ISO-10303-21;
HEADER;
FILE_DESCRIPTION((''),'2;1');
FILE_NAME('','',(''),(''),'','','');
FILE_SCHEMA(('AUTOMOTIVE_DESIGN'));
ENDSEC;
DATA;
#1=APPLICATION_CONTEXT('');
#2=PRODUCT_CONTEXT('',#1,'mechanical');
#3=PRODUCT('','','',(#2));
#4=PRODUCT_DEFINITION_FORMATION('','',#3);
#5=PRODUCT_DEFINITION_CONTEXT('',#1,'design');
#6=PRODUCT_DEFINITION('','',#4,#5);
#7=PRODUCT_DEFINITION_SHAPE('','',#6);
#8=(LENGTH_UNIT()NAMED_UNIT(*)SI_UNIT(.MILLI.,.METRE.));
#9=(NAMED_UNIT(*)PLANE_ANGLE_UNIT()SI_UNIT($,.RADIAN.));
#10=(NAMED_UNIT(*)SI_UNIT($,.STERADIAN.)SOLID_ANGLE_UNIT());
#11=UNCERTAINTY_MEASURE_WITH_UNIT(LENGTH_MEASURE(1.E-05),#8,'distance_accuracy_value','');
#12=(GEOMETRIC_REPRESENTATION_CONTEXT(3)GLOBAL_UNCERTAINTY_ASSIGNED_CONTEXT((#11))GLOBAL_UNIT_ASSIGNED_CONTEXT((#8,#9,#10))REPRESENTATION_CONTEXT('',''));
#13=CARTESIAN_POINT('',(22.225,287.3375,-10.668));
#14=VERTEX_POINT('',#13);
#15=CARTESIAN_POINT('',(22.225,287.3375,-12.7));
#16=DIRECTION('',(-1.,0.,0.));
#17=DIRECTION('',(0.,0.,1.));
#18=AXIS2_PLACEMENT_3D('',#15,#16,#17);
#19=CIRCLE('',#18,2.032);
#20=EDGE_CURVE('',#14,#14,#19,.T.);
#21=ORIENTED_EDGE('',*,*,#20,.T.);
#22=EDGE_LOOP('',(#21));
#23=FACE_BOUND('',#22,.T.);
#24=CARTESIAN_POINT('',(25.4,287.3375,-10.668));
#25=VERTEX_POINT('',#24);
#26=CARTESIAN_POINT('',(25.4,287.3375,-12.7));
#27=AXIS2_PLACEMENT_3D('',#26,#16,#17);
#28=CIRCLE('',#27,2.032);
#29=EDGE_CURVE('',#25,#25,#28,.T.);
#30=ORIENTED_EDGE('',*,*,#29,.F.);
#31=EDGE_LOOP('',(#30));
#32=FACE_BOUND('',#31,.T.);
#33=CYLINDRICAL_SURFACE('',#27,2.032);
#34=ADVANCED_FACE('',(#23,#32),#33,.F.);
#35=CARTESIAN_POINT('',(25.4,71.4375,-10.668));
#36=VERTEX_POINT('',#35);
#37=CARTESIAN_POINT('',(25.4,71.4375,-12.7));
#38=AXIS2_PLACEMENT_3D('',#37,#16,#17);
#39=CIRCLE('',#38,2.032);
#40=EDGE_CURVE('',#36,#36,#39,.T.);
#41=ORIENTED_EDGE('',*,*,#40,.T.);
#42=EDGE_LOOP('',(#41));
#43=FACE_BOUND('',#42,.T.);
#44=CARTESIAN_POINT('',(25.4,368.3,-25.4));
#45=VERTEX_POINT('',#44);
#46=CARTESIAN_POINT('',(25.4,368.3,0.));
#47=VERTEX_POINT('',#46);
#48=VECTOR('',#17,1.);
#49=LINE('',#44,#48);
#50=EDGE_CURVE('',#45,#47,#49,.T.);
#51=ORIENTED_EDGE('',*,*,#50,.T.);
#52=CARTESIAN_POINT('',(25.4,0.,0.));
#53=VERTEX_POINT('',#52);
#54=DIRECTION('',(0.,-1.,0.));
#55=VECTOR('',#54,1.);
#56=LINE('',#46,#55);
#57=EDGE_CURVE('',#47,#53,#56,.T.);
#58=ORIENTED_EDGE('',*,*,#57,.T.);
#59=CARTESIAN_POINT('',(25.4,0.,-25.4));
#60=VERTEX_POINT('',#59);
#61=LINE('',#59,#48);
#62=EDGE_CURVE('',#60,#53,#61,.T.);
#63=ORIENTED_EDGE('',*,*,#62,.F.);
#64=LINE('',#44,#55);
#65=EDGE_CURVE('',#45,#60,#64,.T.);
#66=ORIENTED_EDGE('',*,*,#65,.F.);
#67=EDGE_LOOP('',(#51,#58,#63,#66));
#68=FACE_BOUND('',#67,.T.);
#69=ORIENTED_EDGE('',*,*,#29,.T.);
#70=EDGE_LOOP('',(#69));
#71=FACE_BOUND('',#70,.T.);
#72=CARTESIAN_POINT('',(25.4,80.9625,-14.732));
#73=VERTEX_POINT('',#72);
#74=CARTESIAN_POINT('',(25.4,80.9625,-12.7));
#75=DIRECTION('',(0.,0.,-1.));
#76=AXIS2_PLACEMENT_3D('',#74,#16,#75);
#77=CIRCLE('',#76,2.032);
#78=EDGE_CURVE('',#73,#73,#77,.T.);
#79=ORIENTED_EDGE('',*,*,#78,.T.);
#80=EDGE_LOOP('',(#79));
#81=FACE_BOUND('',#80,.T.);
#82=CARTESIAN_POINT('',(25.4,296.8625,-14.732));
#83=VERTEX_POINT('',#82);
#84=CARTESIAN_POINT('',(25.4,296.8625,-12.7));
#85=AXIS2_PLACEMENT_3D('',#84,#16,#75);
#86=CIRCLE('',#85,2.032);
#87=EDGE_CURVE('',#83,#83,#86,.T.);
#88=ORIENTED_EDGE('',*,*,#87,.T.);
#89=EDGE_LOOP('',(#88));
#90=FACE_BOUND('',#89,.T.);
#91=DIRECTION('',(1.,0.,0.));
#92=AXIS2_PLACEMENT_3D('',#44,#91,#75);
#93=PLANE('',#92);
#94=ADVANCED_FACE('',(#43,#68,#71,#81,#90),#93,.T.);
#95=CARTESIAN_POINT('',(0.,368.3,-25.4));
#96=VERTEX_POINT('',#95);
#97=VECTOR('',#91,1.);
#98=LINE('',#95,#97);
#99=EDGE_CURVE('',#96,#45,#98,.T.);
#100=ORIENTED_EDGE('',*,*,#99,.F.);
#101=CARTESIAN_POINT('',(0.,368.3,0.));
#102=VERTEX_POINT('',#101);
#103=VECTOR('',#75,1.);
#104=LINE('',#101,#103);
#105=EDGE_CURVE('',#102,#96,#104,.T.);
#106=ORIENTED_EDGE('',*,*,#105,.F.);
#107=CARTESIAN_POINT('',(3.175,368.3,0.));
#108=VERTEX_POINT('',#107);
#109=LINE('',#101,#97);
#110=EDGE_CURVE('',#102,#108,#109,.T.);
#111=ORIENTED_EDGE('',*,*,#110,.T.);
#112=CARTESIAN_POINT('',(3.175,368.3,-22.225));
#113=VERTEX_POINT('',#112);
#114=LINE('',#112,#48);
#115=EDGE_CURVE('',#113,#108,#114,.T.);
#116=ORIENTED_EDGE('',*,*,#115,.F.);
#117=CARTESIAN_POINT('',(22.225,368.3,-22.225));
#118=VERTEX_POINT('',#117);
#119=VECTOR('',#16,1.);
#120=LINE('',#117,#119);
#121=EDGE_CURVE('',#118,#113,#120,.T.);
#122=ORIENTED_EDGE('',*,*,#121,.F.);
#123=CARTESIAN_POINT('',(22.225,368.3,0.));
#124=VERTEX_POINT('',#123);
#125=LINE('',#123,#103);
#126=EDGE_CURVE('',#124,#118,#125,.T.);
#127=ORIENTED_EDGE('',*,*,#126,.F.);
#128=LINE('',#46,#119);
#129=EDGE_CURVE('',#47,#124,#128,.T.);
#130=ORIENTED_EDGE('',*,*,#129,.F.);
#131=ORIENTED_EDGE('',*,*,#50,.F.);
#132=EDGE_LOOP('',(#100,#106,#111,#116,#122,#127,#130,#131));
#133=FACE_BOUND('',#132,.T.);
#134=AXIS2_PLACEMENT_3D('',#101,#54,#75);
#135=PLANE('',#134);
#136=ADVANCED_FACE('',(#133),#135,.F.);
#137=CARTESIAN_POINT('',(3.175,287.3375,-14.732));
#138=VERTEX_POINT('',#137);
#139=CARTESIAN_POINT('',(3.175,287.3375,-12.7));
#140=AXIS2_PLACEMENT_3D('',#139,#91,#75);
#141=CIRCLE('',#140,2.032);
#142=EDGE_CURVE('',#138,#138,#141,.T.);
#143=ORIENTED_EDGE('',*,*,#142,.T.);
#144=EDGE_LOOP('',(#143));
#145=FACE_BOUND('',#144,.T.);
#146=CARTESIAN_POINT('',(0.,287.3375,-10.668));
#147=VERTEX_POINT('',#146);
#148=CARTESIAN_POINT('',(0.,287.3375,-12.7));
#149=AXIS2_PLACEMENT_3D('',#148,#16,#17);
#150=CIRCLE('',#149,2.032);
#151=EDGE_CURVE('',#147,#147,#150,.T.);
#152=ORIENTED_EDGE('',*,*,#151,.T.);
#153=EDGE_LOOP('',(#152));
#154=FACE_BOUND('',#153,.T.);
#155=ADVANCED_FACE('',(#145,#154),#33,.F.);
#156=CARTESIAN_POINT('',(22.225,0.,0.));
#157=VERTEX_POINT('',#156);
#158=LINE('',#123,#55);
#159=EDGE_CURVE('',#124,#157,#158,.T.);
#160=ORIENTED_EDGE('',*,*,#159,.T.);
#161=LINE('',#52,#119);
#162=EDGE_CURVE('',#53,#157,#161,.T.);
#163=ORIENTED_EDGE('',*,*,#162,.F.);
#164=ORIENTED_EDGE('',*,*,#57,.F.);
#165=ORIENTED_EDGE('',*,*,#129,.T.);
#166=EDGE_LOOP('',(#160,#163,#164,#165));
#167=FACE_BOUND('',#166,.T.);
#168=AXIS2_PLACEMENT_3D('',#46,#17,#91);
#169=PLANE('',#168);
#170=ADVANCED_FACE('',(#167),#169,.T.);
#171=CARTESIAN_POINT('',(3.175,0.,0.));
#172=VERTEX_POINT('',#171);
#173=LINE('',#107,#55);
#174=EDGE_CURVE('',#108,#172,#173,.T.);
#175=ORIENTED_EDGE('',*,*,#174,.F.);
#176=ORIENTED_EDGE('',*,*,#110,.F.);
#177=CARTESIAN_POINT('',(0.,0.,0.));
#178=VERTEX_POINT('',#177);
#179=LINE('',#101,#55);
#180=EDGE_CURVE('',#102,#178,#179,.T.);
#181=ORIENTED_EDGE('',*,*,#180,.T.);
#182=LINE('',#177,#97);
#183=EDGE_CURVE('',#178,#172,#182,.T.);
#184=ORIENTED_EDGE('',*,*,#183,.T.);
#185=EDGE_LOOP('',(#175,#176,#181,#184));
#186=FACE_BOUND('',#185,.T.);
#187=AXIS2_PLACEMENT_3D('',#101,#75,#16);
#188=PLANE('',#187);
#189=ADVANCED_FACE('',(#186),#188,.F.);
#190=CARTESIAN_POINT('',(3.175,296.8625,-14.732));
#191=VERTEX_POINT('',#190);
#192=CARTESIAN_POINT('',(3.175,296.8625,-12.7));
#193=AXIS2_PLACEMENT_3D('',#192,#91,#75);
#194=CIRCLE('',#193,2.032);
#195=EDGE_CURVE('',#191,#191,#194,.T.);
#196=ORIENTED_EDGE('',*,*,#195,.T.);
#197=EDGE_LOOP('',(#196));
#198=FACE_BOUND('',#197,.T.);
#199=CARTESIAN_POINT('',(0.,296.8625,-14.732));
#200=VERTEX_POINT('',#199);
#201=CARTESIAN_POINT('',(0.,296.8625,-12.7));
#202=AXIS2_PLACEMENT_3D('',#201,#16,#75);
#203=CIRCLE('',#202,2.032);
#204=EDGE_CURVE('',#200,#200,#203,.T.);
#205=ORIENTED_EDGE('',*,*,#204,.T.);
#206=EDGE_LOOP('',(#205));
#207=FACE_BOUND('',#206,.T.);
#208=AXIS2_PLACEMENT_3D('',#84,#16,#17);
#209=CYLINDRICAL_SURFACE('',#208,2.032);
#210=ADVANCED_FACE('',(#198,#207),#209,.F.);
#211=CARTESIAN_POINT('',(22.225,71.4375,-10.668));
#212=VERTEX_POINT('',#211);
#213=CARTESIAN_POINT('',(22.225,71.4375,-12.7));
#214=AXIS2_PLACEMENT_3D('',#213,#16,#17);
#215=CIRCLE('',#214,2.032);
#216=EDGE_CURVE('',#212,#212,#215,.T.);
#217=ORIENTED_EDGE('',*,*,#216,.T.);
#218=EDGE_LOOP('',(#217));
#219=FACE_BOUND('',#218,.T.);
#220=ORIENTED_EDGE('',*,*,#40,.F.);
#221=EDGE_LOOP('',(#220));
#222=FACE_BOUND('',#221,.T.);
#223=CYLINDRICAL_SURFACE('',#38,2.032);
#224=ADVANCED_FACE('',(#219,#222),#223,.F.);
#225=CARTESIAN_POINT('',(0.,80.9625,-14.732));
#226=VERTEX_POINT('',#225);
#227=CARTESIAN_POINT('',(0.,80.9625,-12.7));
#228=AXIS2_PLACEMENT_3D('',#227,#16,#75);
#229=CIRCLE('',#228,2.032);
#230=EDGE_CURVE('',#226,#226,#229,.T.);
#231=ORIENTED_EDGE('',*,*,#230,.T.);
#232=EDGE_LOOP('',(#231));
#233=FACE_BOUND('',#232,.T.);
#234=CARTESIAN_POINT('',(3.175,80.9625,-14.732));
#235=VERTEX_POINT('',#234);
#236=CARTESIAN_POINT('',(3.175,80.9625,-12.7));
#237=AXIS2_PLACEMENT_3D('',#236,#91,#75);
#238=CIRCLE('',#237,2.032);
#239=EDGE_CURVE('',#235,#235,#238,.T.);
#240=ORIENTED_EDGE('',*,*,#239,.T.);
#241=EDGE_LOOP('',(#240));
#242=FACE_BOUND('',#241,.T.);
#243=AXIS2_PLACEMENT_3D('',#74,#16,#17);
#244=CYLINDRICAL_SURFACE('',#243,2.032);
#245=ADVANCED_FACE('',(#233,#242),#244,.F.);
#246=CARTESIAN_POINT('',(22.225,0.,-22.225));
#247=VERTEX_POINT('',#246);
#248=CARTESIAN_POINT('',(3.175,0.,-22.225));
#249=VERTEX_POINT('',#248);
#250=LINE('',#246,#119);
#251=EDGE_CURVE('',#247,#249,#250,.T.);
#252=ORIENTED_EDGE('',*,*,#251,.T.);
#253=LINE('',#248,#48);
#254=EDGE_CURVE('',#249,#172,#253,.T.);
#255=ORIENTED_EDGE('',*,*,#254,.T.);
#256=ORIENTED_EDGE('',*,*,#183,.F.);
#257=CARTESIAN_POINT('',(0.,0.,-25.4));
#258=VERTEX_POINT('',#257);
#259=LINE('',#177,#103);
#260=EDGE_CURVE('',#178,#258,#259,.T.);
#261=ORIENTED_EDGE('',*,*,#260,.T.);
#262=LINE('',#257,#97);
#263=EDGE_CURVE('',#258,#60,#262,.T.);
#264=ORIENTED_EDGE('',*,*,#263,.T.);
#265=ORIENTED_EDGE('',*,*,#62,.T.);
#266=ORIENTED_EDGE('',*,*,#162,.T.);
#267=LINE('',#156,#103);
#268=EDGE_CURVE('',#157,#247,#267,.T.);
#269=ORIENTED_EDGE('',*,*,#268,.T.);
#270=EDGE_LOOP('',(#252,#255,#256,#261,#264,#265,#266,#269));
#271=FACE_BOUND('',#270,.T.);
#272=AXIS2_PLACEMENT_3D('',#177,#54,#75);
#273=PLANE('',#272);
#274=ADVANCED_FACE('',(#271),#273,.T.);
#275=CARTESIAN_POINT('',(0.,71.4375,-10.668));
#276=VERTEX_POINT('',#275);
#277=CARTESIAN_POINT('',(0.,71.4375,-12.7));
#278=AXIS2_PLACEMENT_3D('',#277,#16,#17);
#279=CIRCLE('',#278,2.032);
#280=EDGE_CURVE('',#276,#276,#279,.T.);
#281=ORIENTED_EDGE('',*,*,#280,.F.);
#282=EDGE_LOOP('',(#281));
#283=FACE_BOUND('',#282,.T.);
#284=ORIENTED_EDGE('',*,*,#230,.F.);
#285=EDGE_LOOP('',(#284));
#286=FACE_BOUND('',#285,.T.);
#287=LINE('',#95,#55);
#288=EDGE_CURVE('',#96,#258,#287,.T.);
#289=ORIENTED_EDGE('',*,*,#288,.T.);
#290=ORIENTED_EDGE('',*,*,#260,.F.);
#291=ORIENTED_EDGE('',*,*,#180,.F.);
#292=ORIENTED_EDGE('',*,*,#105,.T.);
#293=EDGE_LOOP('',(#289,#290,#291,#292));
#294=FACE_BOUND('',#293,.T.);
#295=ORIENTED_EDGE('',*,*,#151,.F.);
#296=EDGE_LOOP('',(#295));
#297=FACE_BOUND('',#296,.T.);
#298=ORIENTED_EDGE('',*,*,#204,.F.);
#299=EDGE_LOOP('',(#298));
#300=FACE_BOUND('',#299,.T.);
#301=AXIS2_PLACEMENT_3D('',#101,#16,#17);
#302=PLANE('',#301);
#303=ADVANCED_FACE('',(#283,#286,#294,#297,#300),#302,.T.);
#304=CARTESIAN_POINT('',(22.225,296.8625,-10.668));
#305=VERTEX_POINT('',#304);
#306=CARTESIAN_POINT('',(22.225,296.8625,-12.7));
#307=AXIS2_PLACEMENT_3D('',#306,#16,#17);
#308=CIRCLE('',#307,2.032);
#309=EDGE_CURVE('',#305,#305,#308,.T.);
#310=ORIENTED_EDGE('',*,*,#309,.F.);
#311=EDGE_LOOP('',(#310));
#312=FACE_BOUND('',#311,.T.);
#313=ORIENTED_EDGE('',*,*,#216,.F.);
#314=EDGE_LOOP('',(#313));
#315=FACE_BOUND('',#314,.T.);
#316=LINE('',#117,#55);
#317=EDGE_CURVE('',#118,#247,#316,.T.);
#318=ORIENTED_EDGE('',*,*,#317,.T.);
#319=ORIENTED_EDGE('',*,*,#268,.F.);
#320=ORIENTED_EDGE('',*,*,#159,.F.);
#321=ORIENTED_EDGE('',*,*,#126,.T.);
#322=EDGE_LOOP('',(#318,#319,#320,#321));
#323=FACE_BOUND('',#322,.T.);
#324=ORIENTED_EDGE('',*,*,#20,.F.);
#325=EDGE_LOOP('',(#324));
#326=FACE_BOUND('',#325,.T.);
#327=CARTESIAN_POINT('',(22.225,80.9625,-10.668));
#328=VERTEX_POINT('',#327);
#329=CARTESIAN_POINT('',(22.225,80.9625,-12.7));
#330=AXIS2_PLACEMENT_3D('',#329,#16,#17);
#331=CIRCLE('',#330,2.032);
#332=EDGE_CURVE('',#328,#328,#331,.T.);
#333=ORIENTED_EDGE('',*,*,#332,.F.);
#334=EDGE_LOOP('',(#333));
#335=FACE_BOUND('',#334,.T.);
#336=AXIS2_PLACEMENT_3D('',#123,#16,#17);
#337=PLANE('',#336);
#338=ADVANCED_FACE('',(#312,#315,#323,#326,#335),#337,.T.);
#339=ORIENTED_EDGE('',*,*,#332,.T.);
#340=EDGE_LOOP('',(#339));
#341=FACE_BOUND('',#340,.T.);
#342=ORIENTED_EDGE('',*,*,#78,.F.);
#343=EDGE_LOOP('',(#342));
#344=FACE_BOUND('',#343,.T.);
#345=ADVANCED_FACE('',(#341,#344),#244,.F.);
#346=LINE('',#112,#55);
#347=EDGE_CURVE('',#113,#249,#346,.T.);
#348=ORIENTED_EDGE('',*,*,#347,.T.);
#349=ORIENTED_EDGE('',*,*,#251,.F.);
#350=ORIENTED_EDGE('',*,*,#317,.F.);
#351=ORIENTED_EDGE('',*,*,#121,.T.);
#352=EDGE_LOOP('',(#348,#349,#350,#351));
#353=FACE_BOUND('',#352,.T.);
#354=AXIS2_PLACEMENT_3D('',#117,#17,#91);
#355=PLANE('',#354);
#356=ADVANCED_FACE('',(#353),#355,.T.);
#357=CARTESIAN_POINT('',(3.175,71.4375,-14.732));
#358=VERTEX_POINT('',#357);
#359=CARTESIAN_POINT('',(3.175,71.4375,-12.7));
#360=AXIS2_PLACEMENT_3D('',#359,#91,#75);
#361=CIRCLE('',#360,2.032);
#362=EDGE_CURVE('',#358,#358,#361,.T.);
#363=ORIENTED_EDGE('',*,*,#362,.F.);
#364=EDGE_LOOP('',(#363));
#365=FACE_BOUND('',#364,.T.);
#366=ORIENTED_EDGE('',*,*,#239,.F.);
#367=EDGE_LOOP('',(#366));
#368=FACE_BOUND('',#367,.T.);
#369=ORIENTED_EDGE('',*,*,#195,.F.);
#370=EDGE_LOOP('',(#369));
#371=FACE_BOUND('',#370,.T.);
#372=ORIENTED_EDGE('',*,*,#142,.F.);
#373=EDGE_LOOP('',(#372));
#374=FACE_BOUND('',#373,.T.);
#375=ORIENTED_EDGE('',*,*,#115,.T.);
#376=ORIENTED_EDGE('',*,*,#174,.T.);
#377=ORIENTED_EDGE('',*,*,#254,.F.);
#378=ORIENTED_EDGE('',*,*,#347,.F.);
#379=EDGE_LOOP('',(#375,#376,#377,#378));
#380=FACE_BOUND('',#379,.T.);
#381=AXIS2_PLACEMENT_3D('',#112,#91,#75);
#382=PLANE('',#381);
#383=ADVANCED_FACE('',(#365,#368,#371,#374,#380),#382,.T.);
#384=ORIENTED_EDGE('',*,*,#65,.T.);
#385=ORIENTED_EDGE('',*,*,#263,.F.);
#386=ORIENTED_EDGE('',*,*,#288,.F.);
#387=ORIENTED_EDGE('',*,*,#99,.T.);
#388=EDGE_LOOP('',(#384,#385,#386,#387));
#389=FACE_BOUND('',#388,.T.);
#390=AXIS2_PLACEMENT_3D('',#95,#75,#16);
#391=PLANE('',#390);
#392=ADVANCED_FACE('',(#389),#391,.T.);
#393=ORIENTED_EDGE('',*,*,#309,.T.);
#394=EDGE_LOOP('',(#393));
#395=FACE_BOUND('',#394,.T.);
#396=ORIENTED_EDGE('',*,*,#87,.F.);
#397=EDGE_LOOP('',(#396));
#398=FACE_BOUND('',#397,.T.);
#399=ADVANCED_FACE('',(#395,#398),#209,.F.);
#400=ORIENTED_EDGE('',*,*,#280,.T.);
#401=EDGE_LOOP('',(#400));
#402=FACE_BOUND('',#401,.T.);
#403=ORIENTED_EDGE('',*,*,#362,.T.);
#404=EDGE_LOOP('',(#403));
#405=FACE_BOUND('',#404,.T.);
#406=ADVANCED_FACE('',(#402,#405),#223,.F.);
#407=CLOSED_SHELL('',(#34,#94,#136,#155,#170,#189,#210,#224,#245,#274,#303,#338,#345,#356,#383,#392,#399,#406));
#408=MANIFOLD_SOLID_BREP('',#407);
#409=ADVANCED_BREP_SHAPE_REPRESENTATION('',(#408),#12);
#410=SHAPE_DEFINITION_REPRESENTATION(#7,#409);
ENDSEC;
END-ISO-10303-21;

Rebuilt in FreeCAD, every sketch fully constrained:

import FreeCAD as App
import Part
import Sketcher

V = App.Vector
Q = App.Units.Quantity

doc = App.newDocument("Part")
params = doc.addObject("Spreadsheet::Sheet", "Params")
for row, (alias, value) in enumerate([
    ("sketch1_width", "1 in"),
    ("sketch1_width2", "0.75 in"),
    ("sketch1_height", "0.875 in"),
    ("pad1_length", "14.5 in"),
    ("sketch2_diameter", "0.16 in"),
    ("pocket1_length", "1 in"),
], start=1):
    params.set(f"A{row}", alias)
    params.set(f"B{row}", "=" + value)
    params.setAlias(f"B{row}", alias)

body = doc.addObject("PartDesign::Body", "Body")

# Sketch on XZ plane
sketch1 = body.newObject("Sketcher::SketchObject", "Sketch")
sketch1.AttachmentSupport = (doc.getObject("XZ_Plane"), [""])
sketch1.MapMode = "FlatFace"
sketch1.addGeometry([
    Part.LineSegment(V(0, 0, 0), V(3.175, 0, 0)),  # 0
    Part.LineSegment(V(3.175, 0, 0), V(3.175, -22.225, 0)),  # 1
    Part.LineSegment(V(3.175, -22.225, 0), V(22.225, -22.225, 0)),  # 2
    Part.LineSegment(V(22.225, -22.225, 0), V(22.225, 0, 0)),  # 3
    Part.LineSegment(V(22.225, 0, 0), V(25.4, 0, 0)),  # 4
    Part.LineSegment(V(25.4, 0, 0), V(25.4, -25.4, 0)),  # 5
    Part.LineSegment(V(25.4, -25.4, 0), V(0, -25.4, 0)),  # 6
    Part.LineSegment(V(0, -25.4, 0), V(0, 0, 0)),  # 7
], False)
sketch1.addConstraint([
    Sketcher.Constraint("Coincident", 0, 2, 1, 1),
    Sketcher.Constraint("Coincident", 1, 2, 2, 1),
    Sketcher.Constraint("Coincident", 2, 2, 3, 1),
    Sketcher.Constraint("Coincident", 3, 2, 4, 1),
    Sketcher.Constraint("Coincident", 4, 2, 5, 1),
    Sketcher.Constraint("Coincident", 5, 2, 6, 1),
    Sketcher.Constraint("Coincident", 6, 2, 7, 1),
    Sketcher.Constraint("Coincident", 7, 2, 0, 1),
    Sketcher.Constraint("Horizontal", 0),
    Sketcher.Constraint("Vertical", 1),
    Sketcher.Constraint("Horizontal", 2),
    Sketcher.Constraint("Vertical", 3),
    Sketcher.Constraint("Horizontal", 4),
    Sketcher.Constraint("Vertical", 5),
    Sketcher.Constraint("Horizontal", 6),
    Sketcher.Constraint("Vertical", 7),
    Sketcher.Constraint("Coincident", 7, 2, -1, 1),
    Sketcher.Constraint("PointOnObject", 3, 2, -1),
    Sketcher.Constraint("Equal", 0, 4),
    Sketcher.Constraint("Equal", 6, 5),
    Sketcher.Constraint("DistanceX", 6, 2, 6, 1, Q("1 in")),
    Sketcher.Constraint("DistanceX", 2, 1, 2, 2, Q("0.75 in")),
    Sketcher.Constraint("DistanceY", 1, 2, 1, 1, Q("0.875 in")),
])
sketch1.setExpression("Constraints[20]", "Params.sketch1_width")
sketch1.setExpression("Constraints[21]", "Params.sketch1_width2")
sketch1.setExpression("Constraints[22]", "Params.sketch1_height")
pad1 = body.newObject("PartDesign::Pad", "Pad")
pad1.Profile = sketch1
pad1.setExpression("Length", "Params.pad1_length")
pad1.Reversed = True

# Sketch on YZ plane
sketch2 = body.newObject("Sketcher::SketchObject", "Sketch001")
sketch2.AttachmentSupport = (doc.getObject("YZ_Plane"), [""])
sketch2.MapMode = "FlatFace"
sketch2.addGeometry([
    Part.Circle(V(71.4375, -12.7, 0), V(0, 0, 1), 2.032),
    Part.Circle(V(296.8625, -12.7, 0), V(0, 0, 1), 2.032),
    Part.Circle(V(287.3375, -12.7, 0), V(0, 0, 1), 2.032),
    Part.Circle(V(80.9625, -12.7, 0), V(0, 0, 1), 2.032),
], False)
sketch2.addConstraint([
    Sketcher.Constraint("Equal", 0, 1),
    Sketcher.Constraint("Equal", 1, 2),
    Sketcher.Constraint("Equal", 2, 3),
    Sketcher.Constraint("Horizontal", 0, 3, 1, 3),
    Sketcher.Constraint("Horizontal", 1, 3, 2, 3),
    Sketcher.Constraint("Horizontal", 2, 3, 3, 3),
    Sketcher.Constraint("Diameter", 0, Q("0.16 in")),
    Sketcher.Constraint("DistanceY", 0, 3, -1, 1, Q("0.5 in")),
    Sketcher.Constraint("DistanceX", 0, 3, 2, 3, Q("8.5 in")),
    Sketcher.Constraint("DistanceX", 3, 3, 1, 3, Q("8.5 in")),
    Sketcher.Constraint("DistanceX", -1, 1, 0, 3, Q("2.8125 in")),
    Sketcher.Constraint("DistanceX", -1, 1, 1, 3, Q("11.6875 in")),
])
sketch2.setExpression("Constraints[6]", "Params.sketch2_diameter")
pocket1 = body.newObject("PartDesign::Pocket", "Pocket")
pocket1.Profile = sketch2
pocket1.setExpression("Length", "Params.pocket1_length")
pocket1.Reversed = True

doc.recompute()
